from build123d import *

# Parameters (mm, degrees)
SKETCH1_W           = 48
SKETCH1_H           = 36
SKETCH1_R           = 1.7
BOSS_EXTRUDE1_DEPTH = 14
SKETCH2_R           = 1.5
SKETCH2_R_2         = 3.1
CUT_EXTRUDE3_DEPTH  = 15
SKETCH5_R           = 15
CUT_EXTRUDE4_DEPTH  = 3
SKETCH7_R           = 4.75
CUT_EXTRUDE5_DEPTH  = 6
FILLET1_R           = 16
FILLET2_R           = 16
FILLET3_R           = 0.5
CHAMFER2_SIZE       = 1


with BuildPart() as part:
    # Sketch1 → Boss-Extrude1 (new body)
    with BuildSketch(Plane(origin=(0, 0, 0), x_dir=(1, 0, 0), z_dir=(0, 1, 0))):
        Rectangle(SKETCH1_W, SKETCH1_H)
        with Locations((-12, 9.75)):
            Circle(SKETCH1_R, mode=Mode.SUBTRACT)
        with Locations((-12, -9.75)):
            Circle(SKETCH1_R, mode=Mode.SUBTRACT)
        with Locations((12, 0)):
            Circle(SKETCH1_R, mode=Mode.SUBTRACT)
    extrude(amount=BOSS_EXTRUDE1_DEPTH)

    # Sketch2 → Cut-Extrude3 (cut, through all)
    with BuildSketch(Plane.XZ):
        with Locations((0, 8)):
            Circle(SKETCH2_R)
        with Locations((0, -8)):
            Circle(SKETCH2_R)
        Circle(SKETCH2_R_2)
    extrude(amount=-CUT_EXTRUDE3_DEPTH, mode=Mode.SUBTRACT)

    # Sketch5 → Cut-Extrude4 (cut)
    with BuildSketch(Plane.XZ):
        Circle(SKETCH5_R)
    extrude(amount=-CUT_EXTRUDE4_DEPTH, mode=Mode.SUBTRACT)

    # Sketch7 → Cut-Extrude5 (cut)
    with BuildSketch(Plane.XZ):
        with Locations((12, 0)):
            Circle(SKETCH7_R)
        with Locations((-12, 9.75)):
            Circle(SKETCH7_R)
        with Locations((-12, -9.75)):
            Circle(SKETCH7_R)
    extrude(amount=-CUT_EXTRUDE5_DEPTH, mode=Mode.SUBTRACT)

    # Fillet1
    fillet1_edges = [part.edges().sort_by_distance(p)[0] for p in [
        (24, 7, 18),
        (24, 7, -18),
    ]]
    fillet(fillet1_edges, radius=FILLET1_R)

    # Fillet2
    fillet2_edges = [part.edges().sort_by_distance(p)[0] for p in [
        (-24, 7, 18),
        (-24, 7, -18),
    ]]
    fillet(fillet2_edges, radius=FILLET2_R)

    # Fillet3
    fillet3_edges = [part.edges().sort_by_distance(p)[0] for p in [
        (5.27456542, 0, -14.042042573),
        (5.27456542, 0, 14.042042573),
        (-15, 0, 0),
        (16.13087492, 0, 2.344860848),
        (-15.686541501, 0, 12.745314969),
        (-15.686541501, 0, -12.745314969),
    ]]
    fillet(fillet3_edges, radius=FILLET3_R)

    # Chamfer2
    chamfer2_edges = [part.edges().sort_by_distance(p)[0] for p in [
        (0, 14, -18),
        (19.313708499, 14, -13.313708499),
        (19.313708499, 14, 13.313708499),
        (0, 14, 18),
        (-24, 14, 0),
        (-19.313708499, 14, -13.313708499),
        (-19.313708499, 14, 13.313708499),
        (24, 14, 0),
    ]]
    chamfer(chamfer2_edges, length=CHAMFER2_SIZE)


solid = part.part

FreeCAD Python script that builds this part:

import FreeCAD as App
import Part
import Sketcher

V = App.Vector
Q = App.Units.Quantity


def edges_at(feature, points):
    """Names of the edges that pass closest to the given points."""
    edges = feature.Shape.Edges
    near = lambda p: min(range(len(edges)), key=lambda i: edges[i].distToShape(Part.Vertex(*p))[0])
    return sorted({f"Edge{near(p) + 1}" for p in points})


def add_polygon(sketch, points):
    """Adds a closed chain of lines whose ends are joined by coincident constraints."""
    first, n = sketch.GeometryCount, len(points)
    for a, b in zip(points, points[1:] + points[:1]):
        sketch.addGeometry(Part.LineSegment(App.Vector(*a, 0), App.Vector(*b, 0)), False)
    for i in range(n):
        sketch.addConstraint(Sketcher.Constraint("Coincident", first + i, 2, first + (i + 1) % n, 1))

doc = App.newDocument("Part")
body = doc.addObject("PartDesign::Body", "Body")

sketch1 = doc.addObject("Sketcher::SketchObject", "Sketch")
body.addObject(sketch1)
sketch1.AttachmentSupport = (doc.XZ_Plane, [""])
sketch1.MapMode = "FlatFace"
add_polygon(sketch1, [(-24, -18), (-24, 18), (24, 18), (24, -18)])
sketch1.addGeometry(Part.Circle(V(-12, 9.8, 0), V(0, 0, 1), 1.7), False)
sketch1.addGeometry(Part.Circle(V(-12, -9.8, 0), V(0, 0, 1), 1.7), False)
sketch1.addGeometry(Part.Circle(V(12, 0, 0), V(0, 0, 1), 1.7), False)
sketch1.addConstraint([
    Sketcher.Constraint("Vertical", 0),
    Sketcher.Constraint("Horizontal", 1),
    Sketcher.Constraint("Vertical", 2),
    Sketcher.Constraint("Horizontal", 3),
    Sketcher.Constraint("Equal", 4, 5),
    Sketcher.Constraint("Equal", 5, 6),
    Sketcher.Constraint("Symmetric", 0, 2, 2, 2, -1, 1),
    Sketcher.Constraint("Symmetric", 4, 3, 5, 3, -1),
    Sketcher.Constraint("PointOnObject", 6, 3, -1),
    Sketcher.Constraint("Diameter", 4, Q("3.4 mm")),
    Sketcher.Constraint("DistanceX", 1, 1, 1, 2, Q("48 mm")),
    Sketcher.Constraint("DistanceY", 0, 1, 0, 2, Q("36 mm")),
    Sketcher.Constraint("DistanceX", 4, 3, -1, 1, Q("12 mm")),
    Sketcher.Constraint("DistanceX", -1, 1, 6, 3, Q("12 mm")),
    Sketcher.Constraint("DistanceY", 5, 3, 4, 3, Q("19.5 mm")),
])
pad1 = doc.addObject("PartDesign::Pad", "Pad")
body.addObject(pad1)
pad1.Profile = sketch1
pad1.Length = 14
pad1.Reversed = True

sketch2 = doc.addObject("Sketcher::SketchObject", "Sketch001")
body.addObject(sketch2)
sketch2.AttachmentSupport = (doc.XZ_Plane, [""])
sketch2.MapMode = "FlatFace"
sketch2.addGeometry([
    Part.Circle(V(0, 8, 0), V(0, 0, 1), 1.5),
    Part.Circle(V(0, -8, 0), V(0, 0, 1), 1.5),
    Part.Circle(V(0, 0, 0), V(0, 0, 1), 3.1),
], False)
sketch2.addConstraint([
    Sketcher.Constraint("Coincident", 2, 3, -1, 1),
    Sketcher.Constraint("Equal", 0, 1),
    Sketcher.Constraint("Symmetric", 0, 3, 1, 3, -1, 1),
    Sketcher.Constraint("PointOnObject", 0, 3, -2),
    Sketcher.Constraint("Diameter", 0, Q("3 mm")),
    Sketcher.Constraint("Diameter", 2, Q("6.2 mm")),
    Sketcher.Constraint("DistanceY", -1, 1, 0, 3, Q("8 mm")),
])
pocket1 = doc.addObject("PartDesign::Pocket", "Pocket")
body.addObject(pocket1)
pocket1.Profile = sketch2
pocket1.Type = "ThroughAll"

sketch3 = doc.addObject("Sketcher::SketchObject", "Sketch002")
body.addObject(sketch3)
sketch3.AttachmentSupport = (doc.XZ_Plane, [""])
sketch3.MapMode = "FlatFace"
sketch3.addGeometry(Part.Circle(V(0, 0, 0), V(0, 0, 1), 15), False)
sketch3.addConstraint([
    Sketcher.Constraint("Coincident", 0, 3, -1, 1),
    Sketcher.Constraint("Diameter", 0, Q("30 mm")),
])
pocket2 = doc.addObject("PartDesign::Pocket", "Pocket001")
body.addObject(pocket2)
pocket2.Profile = sketch3
pocket2.Length = 3

sketch4 = doc.addObject("Sketcher::SketchObject", "Sketch003")
body.addObject(sketch4)
sketch4.AttachmentSupport = (doc.XZ_Plane, [""])
sketch4.MapMode = "FlatFace"
sketch4.addGeometry([
    Part.Circle(V(12, 0, 0), V(0, 0, 1), 4.8),
    Part.Circle(V(-12, 9.8, 0), V(0, 0, 1), 4.8),
    Part.Circle(V(-12, -9.8, 0), V(0, 0, 1), 4.8),
], False)
sketch4.addConstraint([
    Sketcher.Constraint("Equal", 0, 1),
    Sketcher.Constraint("Equal", 1, 2),
    Sketcher.Constraint("Symmetric", 1, 3, 2, 3, -1),
    Sketcher.Constraint("PointOnObject", 0, 3, -1),
    Sketcher.Constraint("Diameter", 0, Q("9.5 mm")),
    Sketcher.Constraint("DistanceX", -1, 1, 0, 3, Q("12 mm")),
    Sketcher.Constraint("DistanceX", 1, 3, -1, 1, Q("12 mm")),
    Sketcher.Constraint("DistanceY", 2, 3, 1, 3, Q("19.5 mm")),
])
pocket3 = doc.addObject("PartDesign::Pocket", "Pocket002")
body.addObject(pocket3)
pocket3.Profile = sketch4
pocket3.Length = 6
doc.recompute()

fillet = doc.addObject("PartDesign::Fillet", "Fillet")
body.addObject(fillet)
fillet.Base = (pocket3, edges_at(pocket3, [(24, 7, 18), (24, 7, -18)]))
fillet.Radius = 16
doc.recompute()

fillet2 = doc.addObject("PartDesign::Fillet", "Fillet001")
body.addObject(fillet2)
fillet2.Base = (fillet, edges_at(fillet, [(-24, 7, 18), (-24, 7, -18)]))
fillet2.Radius = 16
doc.recompute()

fillet3 = doc.addObject("PartDesign::Fillet", "Fillet002")
body.addObject(fillet3)
fillet3.Base = (fillet2, edges_at(fillet2, [
    (5.275, 0, -14.042),
    (5.275, 0, 14.042),
    (-15, 0, 0),
    (16.131, 0, 2.345),
    (-15.687, 0, 12.745),
    (-15.687, 0, -12.745),
]))
fillet3.Radius = 0.5
doc.recompute()

chamfer = doc.addObject("PartDesign::Chamfer", "Chamfer")
body.addObject(chamfer)
chamfer.Base = (fillet3, edges_at(fillet3, [
    (0, 14, -18),
    (19.314, 14, -13.314),
    (19.314, 14, 13.314),
    (0, 14, 18),
    (-24, 14, 0),
    (-19.314, 14, -13.314),
    (-19.314, 14, 13.314),
    (24, 14, 0),
]))
chamfer.Size = 1

doc.recompute()
